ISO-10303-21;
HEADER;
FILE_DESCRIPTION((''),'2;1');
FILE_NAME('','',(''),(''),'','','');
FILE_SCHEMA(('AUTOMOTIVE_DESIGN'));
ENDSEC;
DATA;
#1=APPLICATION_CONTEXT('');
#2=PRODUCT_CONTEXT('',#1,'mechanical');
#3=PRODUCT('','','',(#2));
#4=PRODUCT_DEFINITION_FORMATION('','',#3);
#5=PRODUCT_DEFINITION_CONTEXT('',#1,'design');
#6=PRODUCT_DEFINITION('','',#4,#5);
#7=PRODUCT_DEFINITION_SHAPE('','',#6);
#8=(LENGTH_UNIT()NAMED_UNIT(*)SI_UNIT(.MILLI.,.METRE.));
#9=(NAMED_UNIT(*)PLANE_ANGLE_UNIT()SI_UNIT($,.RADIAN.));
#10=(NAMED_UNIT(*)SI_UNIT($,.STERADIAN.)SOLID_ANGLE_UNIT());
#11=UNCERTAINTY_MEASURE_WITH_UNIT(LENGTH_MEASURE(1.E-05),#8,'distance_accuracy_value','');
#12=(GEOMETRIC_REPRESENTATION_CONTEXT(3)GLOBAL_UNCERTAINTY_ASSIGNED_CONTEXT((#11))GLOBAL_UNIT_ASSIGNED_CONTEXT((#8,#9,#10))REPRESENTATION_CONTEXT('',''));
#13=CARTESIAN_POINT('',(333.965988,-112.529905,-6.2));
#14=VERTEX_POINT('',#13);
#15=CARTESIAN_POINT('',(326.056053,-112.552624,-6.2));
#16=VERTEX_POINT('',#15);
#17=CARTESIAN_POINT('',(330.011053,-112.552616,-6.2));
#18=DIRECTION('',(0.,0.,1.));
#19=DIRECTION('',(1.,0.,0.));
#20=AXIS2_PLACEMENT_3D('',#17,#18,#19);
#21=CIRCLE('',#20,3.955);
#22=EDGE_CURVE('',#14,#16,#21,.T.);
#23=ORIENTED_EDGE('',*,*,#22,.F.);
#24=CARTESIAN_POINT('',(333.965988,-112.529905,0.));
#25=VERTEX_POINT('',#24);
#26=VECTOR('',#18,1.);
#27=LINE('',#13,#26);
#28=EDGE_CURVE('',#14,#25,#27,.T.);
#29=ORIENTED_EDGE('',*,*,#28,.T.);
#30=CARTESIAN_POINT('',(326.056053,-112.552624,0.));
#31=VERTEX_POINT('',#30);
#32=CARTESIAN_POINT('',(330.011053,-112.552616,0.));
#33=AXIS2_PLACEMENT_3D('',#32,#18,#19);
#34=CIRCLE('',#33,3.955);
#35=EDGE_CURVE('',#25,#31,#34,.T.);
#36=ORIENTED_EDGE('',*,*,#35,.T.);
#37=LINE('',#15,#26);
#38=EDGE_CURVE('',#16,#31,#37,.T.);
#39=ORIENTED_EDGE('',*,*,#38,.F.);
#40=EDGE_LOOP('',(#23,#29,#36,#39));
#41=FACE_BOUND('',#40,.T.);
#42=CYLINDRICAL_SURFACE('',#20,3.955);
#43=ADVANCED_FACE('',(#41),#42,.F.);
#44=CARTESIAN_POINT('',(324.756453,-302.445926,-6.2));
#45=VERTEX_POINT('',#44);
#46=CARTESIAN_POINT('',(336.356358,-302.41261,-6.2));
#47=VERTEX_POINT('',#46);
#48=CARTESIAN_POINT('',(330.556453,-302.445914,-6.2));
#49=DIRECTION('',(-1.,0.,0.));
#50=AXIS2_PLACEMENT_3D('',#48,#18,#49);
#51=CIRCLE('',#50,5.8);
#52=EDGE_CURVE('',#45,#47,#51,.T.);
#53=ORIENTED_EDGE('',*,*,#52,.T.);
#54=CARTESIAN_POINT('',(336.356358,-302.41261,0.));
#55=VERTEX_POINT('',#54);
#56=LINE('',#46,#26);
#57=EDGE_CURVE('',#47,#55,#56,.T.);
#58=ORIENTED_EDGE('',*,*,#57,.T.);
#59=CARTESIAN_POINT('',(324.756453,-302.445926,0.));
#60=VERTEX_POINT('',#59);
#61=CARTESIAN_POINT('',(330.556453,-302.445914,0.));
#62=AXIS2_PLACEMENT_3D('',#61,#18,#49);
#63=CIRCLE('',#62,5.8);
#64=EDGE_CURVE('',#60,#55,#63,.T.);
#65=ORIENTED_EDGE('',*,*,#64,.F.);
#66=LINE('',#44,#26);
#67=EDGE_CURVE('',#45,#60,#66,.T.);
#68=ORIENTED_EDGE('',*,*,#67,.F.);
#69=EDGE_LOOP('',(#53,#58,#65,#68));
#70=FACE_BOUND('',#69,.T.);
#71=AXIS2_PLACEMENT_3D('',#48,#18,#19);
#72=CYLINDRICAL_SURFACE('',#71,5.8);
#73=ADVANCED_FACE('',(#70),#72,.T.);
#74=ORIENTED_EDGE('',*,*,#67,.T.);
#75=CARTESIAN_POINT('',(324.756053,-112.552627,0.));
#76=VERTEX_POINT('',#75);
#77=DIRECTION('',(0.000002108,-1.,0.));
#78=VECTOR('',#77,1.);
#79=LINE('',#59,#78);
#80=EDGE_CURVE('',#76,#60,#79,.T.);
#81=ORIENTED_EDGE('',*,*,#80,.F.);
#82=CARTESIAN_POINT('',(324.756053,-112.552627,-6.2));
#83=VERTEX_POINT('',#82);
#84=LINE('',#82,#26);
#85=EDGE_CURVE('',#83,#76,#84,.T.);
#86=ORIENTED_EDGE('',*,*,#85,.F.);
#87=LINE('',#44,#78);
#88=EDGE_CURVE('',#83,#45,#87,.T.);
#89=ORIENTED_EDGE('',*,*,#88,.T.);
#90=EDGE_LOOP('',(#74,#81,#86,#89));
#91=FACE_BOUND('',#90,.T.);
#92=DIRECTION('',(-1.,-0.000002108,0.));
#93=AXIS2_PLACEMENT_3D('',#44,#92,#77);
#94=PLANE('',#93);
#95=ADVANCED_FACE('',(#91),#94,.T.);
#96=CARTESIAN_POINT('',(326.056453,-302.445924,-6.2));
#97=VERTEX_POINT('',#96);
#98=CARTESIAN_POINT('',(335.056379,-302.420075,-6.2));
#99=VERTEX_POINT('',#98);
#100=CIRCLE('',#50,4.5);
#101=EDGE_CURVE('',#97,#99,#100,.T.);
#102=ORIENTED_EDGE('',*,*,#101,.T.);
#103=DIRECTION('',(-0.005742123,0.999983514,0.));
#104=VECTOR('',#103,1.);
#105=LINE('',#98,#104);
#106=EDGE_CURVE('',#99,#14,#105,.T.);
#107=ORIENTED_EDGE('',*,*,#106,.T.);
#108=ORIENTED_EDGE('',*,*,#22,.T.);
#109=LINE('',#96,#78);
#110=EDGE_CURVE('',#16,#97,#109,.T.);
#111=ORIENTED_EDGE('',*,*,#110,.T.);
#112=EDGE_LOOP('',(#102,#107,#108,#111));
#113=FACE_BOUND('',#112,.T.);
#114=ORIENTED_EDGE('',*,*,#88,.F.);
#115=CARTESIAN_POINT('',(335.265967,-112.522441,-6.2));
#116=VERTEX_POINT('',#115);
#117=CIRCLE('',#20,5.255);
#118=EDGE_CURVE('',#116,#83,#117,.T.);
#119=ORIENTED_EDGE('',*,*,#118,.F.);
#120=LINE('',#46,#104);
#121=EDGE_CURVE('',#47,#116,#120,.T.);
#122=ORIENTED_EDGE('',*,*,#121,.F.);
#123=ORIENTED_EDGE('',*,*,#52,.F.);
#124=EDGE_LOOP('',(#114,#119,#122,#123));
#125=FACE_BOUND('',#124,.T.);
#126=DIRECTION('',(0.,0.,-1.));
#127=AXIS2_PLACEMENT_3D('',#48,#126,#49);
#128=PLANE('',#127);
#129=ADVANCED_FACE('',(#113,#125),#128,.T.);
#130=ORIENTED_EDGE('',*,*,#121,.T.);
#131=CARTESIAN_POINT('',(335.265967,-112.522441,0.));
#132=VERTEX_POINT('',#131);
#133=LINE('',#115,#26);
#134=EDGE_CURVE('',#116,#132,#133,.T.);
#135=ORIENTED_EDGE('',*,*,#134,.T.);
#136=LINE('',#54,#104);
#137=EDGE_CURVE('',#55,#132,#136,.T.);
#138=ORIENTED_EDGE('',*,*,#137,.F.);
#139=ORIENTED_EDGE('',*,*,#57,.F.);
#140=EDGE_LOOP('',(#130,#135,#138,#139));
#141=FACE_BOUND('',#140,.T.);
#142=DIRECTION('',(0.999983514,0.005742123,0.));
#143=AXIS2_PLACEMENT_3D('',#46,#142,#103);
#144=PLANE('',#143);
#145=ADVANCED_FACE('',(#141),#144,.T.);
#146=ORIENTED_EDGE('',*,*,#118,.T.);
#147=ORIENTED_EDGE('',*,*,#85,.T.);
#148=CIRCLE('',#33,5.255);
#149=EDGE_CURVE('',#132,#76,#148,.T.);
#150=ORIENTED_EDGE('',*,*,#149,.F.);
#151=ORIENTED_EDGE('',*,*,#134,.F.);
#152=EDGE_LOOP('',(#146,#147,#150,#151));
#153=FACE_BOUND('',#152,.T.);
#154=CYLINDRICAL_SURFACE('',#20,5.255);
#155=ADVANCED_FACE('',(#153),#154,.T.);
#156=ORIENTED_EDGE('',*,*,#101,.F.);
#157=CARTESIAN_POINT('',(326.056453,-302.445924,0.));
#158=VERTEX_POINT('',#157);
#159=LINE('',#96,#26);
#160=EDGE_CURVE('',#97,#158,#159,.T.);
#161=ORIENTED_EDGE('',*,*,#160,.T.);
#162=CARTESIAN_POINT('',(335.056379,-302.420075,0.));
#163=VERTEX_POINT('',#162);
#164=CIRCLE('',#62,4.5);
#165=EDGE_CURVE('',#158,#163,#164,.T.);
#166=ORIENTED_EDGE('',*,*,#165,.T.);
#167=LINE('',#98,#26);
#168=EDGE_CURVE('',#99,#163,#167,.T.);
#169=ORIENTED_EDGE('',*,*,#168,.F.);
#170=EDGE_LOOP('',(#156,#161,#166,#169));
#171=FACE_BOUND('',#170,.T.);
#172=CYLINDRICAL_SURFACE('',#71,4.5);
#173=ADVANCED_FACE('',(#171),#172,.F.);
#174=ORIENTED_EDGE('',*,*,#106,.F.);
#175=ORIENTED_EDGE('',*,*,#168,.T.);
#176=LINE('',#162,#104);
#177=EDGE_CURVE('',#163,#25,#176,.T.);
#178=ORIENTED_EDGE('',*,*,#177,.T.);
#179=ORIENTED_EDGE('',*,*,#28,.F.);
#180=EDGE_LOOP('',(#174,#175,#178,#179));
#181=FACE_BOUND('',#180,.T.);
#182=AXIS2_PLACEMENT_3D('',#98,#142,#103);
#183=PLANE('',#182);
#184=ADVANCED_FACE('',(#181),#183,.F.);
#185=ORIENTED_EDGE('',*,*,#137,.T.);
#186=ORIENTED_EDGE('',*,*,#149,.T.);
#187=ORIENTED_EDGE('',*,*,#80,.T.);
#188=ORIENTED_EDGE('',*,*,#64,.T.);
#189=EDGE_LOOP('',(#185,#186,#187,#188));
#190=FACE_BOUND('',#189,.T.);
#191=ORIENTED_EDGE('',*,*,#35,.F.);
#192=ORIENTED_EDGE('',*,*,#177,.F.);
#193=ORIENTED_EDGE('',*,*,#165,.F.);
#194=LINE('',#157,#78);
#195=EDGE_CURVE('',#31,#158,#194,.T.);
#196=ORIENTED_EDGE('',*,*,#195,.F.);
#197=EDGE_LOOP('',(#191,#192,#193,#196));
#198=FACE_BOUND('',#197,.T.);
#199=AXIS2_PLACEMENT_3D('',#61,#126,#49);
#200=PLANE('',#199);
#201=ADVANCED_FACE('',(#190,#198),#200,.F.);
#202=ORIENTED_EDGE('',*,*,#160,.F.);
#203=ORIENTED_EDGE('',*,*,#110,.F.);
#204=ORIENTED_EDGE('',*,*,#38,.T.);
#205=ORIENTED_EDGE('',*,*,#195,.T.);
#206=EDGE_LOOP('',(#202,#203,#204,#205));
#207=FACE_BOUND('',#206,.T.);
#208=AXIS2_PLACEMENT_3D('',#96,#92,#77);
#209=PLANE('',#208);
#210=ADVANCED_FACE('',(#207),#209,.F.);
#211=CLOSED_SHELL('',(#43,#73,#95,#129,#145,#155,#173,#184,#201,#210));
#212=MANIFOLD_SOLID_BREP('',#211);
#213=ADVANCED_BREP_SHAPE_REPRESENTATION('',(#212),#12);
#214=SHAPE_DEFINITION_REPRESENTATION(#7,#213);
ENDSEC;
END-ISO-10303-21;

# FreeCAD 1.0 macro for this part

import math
import FreeCAD as App
import Part
import Sketcher

V = App.Vector

doc = App.newDocument("Part")
params = doc.addObject("Spreadsheet::Sheet", "Params")
for row, (alias, value) in enumerate([
    ("sketch1_radius", "5.8 mm"),
    ("sketch1_radius2", "4.5 mm"),
    ("pad1_length", "6.2 mm"),
], start=1):
    params.set(f"A{row}", alias)
    params.set(f"B{row}", "=" + value)
    params.setAlias(f"B{row}", alias)

body = doc.addObject("PartDesign::Body", "Body")

sketch1 = body.newObject("Sketcher::SketchObject", "Sketch")
sketch1.AttachmentSupport = (doc.getObject("XY_Plane"), [""])
sketch1.MapMode = "FlatFace"
sketch1.addGeometry([
    Part.LineSegment(V(324.8, -112.6, 0), V(324.8, -302.4, 0)),
    Part.ArcOfCircle(Part.Circle(V(330.6, -302.4, 0), V(0, 0, 1), 5.8), math.radians(-180), math.radians(0)),
    Part.LineSegment(V(336.4, -302.4, 0), V(335.3, -112.5, 0)),
    Part.ArcOfCircle(Part.Circle(V(330, -112.6, 0), V(0, 0, 1), 5.3), math.radians(0), math.radians(180)),
    Part.LineSegment(V(326.1, -302.4, 0), V(326.1, -112.6, 0)),
    Part.ArcOfCircle(Part.Circle(V(330, -112.6, 0), V(0, 0, 1), 4), math.radians(0), math.radians(180)),
    Part.LineSegment(V(334, -112.5, 0), V(335.1, -302.4, 0)),
    Part.ArcOfCircle(Part.Circle(V(330.6, -302.4, 0), V(0, 0, 1), 4.5), math.radians(-180), math.radians(0)),
], False)
sketch1.addConstraint([
    Sketcher.Constraint("Tangent", 0, 2, 1, 1),
    Sketcher.Constraint("Tangent", 1, 2, 2, 1),
    Sketcher.Constraint("Tangent", 2, 2, 3, 1),
    Sketcher.Constraint("Tangent", 3, 2, 0, 1),
    Sketcher.Constraint("Tangent", 4, 2, 5, 2),
    Sketcher.Constraint("Tangent", 5, 1, 6, 1),
    Sketcher.Constraint("Tangent", 6, 2, 7, 2),
    Sketcher.Constraint("Tangent", 7, 1, 4, 1),
    Sketcher.Constraint("Coincident", 5, 3, 3, 3),
    Sketcher.Constraint("Coincident", 7, 3, 1, 3),
    Sketcher.Constraint("Parallel", 0, 4),
    Sketcher.Constraint("Radius", 1, 5.8),
    Sketcher.Constraint("Radius", 7, 4.5),
    Sketcher.Constraint("Radius", 3, 5.255),
    Sketcher.Constraint("Distance", 0, 189.8933),
    Sketcher.Constraint("DistanceX", 3, 3, 1, 3, 0.5454),
    Sketcher.Constraint("DistanceY", 1, 2, -1, 1, 302.41261),
    Sketcher.Constraint("DistanceX", -1, 1, 5, 1, 333.965988),
])
sketch1.setExpression("Constraints[11]", "Params.sketch1_radius")
sketch1.setExpression("Constraints[12]", "Params.sketch1_radius2")
pad1 = body.newObject("PartDesign::Pad", "Pad")
pad1.Profile = sketch1
pad1.setExpression("Length", "Params.pad1_length")
pad1.Reversed = True

doc.recompute()
